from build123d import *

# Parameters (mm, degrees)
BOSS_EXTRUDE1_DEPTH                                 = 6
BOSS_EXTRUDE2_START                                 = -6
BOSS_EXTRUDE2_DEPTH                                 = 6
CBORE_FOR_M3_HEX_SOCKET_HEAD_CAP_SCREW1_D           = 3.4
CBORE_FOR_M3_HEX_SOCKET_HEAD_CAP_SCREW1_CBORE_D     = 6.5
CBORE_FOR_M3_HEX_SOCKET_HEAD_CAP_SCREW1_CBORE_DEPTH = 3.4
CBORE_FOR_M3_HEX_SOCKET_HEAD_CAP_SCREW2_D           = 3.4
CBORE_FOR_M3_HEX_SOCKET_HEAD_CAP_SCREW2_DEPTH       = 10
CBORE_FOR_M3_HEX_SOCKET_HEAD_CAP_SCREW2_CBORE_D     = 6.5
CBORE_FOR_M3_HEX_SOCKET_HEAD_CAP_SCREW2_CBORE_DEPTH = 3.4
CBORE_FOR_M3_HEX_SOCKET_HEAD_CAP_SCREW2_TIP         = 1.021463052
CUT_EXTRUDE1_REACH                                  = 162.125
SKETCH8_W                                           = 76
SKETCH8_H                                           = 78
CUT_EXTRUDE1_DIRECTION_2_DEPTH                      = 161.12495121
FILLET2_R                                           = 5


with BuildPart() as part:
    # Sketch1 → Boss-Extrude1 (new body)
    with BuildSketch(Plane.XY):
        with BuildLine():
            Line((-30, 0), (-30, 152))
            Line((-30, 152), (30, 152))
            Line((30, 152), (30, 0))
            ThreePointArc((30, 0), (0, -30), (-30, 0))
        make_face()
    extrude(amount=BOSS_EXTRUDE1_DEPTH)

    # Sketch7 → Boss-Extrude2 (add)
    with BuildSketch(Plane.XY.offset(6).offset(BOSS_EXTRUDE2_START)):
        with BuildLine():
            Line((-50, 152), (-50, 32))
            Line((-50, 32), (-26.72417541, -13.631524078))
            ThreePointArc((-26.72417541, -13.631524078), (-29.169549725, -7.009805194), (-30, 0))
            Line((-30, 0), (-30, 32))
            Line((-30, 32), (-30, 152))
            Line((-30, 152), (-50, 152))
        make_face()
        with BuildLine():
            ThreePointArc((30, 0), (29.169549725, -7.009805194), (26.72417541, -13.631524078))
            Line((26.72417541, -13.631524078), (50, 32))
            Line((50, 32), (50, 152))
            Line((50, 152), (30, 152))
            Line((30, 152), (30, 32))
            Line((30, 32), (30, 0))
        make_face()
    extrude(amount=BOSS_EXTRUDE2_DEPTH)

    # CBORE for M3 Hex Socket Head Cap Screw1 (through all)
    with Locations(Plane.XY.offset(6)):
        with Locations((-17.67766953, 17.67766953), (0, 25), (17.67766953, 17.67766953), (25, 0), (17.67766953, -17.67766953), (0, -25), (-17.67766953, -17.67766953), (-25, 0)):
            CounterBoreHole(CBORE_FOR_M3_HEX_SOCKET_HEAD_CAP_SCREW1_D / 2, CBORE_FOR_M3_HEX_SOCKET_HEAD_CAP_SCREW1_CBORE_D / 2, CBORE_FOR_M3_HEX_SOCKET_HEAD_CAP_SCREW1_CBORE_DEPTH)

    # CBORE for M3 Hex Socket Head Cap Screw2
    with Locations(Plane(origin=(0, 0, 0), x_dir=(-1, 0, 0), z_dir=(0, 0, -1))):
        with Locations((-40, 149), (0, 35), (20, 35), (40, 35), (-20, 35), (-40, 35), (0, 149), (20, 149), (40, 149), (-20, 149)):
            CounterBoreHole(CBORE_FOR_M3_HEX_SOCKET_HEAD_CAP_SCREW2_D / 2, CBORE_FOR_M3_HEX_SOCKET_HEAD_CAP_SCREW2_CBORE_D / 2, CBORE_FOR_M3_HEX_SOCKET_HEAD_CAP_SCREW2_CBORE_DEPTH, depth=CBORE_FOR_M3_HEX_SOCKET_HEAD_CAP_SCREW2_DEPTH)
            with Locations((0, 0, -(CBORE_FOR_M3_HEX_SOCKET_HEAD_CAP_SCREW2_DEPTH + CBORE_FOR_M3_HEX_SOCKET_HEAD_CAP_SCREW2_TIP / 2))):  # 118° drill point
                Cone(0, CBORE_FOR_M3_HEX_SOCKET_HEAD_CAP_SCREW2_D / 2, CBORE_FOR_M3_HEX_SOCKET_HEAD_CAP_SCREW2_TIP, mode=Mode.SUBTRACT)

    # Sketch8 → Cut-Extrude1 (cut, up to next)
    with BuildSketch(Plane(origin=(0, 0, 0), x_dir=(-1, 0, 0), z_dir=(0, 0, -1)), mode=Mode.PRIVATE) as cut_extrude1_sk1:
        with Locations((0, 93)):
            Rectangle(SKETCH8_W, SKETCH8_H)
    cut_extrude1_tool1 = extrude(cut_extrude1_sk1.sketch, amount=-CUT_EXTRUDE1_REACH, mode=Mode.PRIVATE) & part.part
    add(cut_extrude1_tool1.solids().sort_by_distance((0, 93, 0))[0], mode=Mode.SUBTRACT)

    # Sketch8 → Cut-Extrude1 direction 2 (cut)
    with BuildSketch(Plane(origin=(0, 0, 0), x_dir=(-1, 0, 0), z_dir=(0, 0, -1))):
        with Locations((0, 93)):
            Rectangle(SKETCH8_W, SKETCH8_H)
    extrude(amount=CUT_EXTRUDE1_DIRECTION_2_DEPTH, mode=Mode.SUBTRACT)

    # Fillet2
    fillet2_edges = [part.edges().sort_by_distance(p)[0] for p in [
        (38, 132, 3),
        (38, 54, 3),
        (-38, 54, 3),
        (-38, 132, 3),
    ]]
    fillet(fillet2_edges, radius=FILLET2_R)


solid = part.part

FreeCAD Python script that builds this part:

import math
import FreeCAD as App
import Part
import Sketcher
Q = App.Units.Quantity


def edges_at(feature, points):
    """Names of the edges that pass closest to the given points."""
    edges = feature.Shape.Edges
    near = lambda p: min(range(len(edges)), key=lambda i: edges[i].distToShape(Part.Vertex(*p))[0])
    return sorted({f"Edge{near(p) + 1}" for p in points})

doc = App.newDocument("Part")
params = doc.addObject("Spreadsheet::Sheet", "Params")
for row, (alias, value) in enumerate([
    ("sketch1_radius", "30 mm"),
    ("sketch1_height", "152 mm"),
    ("pad1_length", "6 mm"),
    ("sketch2_radius", "30 mm"),
    ("sketch2_width", "20 mm"),
    ("sketch2_height", "120 mm"),
    ("sketch2_height2", "152 mm"),
    ("pad2_length", "6 mm"),
    ("sketch3_diameter", "3.4 mm"),
    ("hole_diameter", "3.4 mm"),
    ("hole_cbore_diameter", "6.5 mm"),
    ("hole_cbore_depth", "3.4 mm"),
    ("sketch4_diameter", "3.4 mm"),
    ("hole2_diameter", "3.4 mm"),
    ("hole2_depth", "10 mm"),
    ("hole2_cbore_diameter", "6.5 mm"),
    ("hole2_cbore_depth", "3.4 mm"),
    ("sketch5_width", "76 mm"),
    ("sketch5_height", "78 mm"),
    ("sketch6_width", "76 mm"),
    ("sketch6_height", "78 mm"),
    ("pocket2_length", "161.124951 mm"),
    ("fillet_radius", "5 mm"),
], start=1):
    params.set(f"A{row}", alias)
    params.set(f"B{row}", "=" + value)
    params.setAlias(f"B{row}", alias)

body = doc.addObject("PartDesign::Body", "Body")

sketch1 = body.newObject("Sketcher::SketchObject", "Sketch")
sketch1.AttachmentSupport = (doc.getObject("XY_Plane"), [""])
sketch1.MapMode = "FlatFace"
sketch1.addGeometry(Part.LineSegment(App.Vector(-30, 152, 0), App.Vector(-30, 0, 0)), False)
sketch1.addGeometry(Part.ArcOfCircle(Part.Circle(App.Vector(0, 0, 0), App.Vector(0, 0, 1), 30), math.radians(180), math.radians(360)), False)
sketch1.addGeometry(Part.LineSegment(App.Vector(30, 0, 0), App.Vector(30, 152, 0)), False)
sketch1.addGeometry(Part.LineSegment(App.Vector(30, 152, 0), App.Vector(-30, 152, 0)), False)
sketch1.addConstraint(Sketcher.Constraint("Tangent", 0, 2, 1, 1))
sketch1.addConstraint(Sketcher.Constraint("Tangent", 1, 2, 2, 1))
sketch1.addConstraint(Sketcher.Constraint("Coincident", 2, 2, 3, 1))
sketch1.addConstraint(Sketcher.Constraint("Coincident", 3, 2, 0, 1))
sketch1.addConstraint(Sketcher.Constraint("Vertical", 0))
sketch1.addConstraint(Sketcher.Constraint("Vertical", 2))
sketch1.addConstraint(Sketcher.Constraint("Horizontal", 3))
sketch1.addConstraint(Sketcher.Constraint("Coincident", 1, 3, -1, 1))
sketch1.addConstraint(Sketcher.Constraint("Radius", 1, Q("30 mm")))
sketch1.addConstraint(Sketcher.Constraint("DistanceY", 0, 2, 0, 1, Q("152 mm")))
sketch1.setExpression("Constraints[8]", "Params.sketch1_radius")
sketch1.setExpression("Constraints[9]", "Params.sketch1_height")
pad1 = body.newObject("PartDesign::Pad", "Pad")
pad1.Profile = sketch1
pad1.setExpression("Length", "Params.pad1_length")

sketch2 = body.newObject("Sketcher::SketchObject", "Sketch001")
sketch2.AttachmentSupport = (doc.getObject("XY_Plane"), [""])
sketch2.MapMode = "FlatFace"
sketch2.addGeometry(Part.LineSegment(App.Vector(-50, 152, 0), App.Vector(-50, 32, 0)), False)
sketch2.addGeometry(Part.LineSegment(App.Vector(-50, 32, 0), App.Vector(-26.724175, -13.631524, 0)), False)
sketch2.addGeometry(Part.ArcOfCircle(Part.Circle(App.Vector(0, 0, 0), App.Vector(0, 0, 1), 30), math.radians(180), math.radians(207.025315)), False)
sketch2.addGeometry(Part.LineSegment(App.Vector(-30, 0, 0), App.Vector(-30, 152, 0)), False)
sketch2.addGeometry(Part.LineSegment(App.Vector(-30, 152, 0), App.Vector(-50, 152, 0)), False)
sketch2.addGeometry(Part.ArcOfCircle(Part.Circle(App.Vector(0, 0, 0), App.Vector(0, 0, 1), 30), math.radians(-27.025315), math.radians(0)), False)
sketch2.addGeometry(Part.LineSegment(App.Vector(26.724175, -13.631524, 0), App.Vector(50, 32, 0)), False)
sketch2.addGeometry(Part.LineSegment(App.Vector(50, 32, 0), App.Vector(50, 152, 0)), False)
sketch2.addGeometry(Part.LineSegment(App.Vector(50, 152, 0), App.Vector(30, 152, 0)), False)
sketch2.addGeometry(Part.LineSegment(App.Vector(30, 152, 0), App.Vector(30, 0, 0)), False)
sketch2.addConstraint(Sketcher.Constraint("Coincident", 0, 2, 1, 1))
sketch2.addConstraint(Sketcher.Constraint("Tangent", 1, 2, 2, 2))
sketch2.addConstraint(Sketcher.Constraint("Tangent", 2, 1, 3, 1))
sketch2.addConstraint(Sketcher.Constraint("Coincident", 3, 2, 4, 1))
sketch2.addConstraint(Sketcher.Constraint("Coincident", 4, 2, 0, 1))
sketch2.addConstraint(Sketcher.Constraint("Tangent", 5, 1, 6, 1))
sketch2.addConstraint(Sketcher.Constraint("Coincident", 6, 2, 7, 1))
sketch2.addConstraint(Sketcher.Constraint("Coincident", 7, 2, 8, 1))
sketch2.addConstraint(Sketcher.Constraint("Coincident", 8, 2, 9, 1))
sketch2.addConstraint(Sketcher.Constraint("Tangent", 9, 2, 5, 2))
sketch2.addConstraint(Sketcher.Constraint("Vertical", 0))
sketch2.addConstraint(Sketcher.Constraint("Vertical", 3))
sketch2.addConstraint(Sketcher.Constraint("Horizontal", 4))
sketch2.addConstraint(Sketcher.Constraint("Vertical", 7))
sketch2.addConstraint(Sketcher.Constraint("Horizontal", 8))
sketch2.addConstraint(Sketcher.Constraint("Vertical", 9))
sketch2.addConstraint(Sketcher.Constraint("Coincident", 2, 3, -1, 1))
sketch2.addConstraint(Sketcher.Constraint("Coincident", 5, 3, -1, 1))
sketch2.addConstraint(Sketcher.Constraint("Equal", 2, 5))
sketch2.addConstraint(Sketcher.Constraint("Symmetric", 0, 2, 6, 2, -2))
sketch2.addConstraint(Sketcher.Constraint("Horizontal", 4, 2, 7, 2))
sketch2.addConstraint(Sketcher.Constraint("Radius", 2, Q("30 mm")))
sketch2.addConstraint(Sketcher.Constraint("DistanceX", 4, 2, 4, 1, Q("20 mm")))
sketch2.addConstraint(Sketcher.Constraint("DistanceY", 0, 2, 0, 1, Q("120 mm")))
sketch2.addConstraint(Sketcher.Constraint("DistanceY", 3, 1, 3, 2, Q("152 mm")))
sketch2.setExpression("Constraints[21]", "Params.sketch2_radius")
sketch2.setExpression("Constraints[22]", "Params.sketch2_width")
sketch2.setExpression("Constraints[23]", "Params.sketch2_height")
sketch2.setExpression("Constraints[24]", "Params.sketch2_height2")
pad2 = body.newObject("PartDesign::Pad", "Pad001")
pad2.Profile = sketch2
pad2.setExpression("Length", "Params.pad2_length")

sketch3 = body.newObject("Sketcher::SketchObject", "Sketch002")
sketch3.AttachmentSupport = (doc.getObject("XY_Plane"), [""])
sketch3.MapMode = "FlatFace"
sketch3.AttachmentOffset = App.Placement(App.Vector(0, 0, 6), App.Rotation())
sketch3.addGeometry(Part.Circle(App.Vector(-17.67767, 17.67767, 0), App.Vector(0, 0, 1), 1.7), False)
sketch3.addGeometry(Part.Circle(App.Vector(0, 25, 0), App.Vector(0, 0, 1), 1.7), False)
sketch3.addGeometry(Part.Circle(App.Vector(17.67767, 17.67767, 0), App.Vector(0, 0, 1), 1.7), False)
sketch3.addGeometry(Part.Circle(App.Vector(25, 0, 0), App.Vector(0, 0, 1), 1.7), False)
sketch3.addGeometry(Part.Circle(App.Vector(17.67767, -17.67767, 0), App.Vector(0, 0, 1), 1.7), False)
sketch3.addGeometry(Part.Circle(App.Vector(0, -25, 0), App.Vector(0, 0, 1), 1.7), False)
sketch3.addGeometry(Part.Circle(App.Vector(-17.67767, -17.67767, 0), App.Vector(0, 0, 1), 1.7), False)
sketch3.addGeometry(Part.Circle(App.Vector(-25, 0, 0), App.Vector(0, 0, 1), 1.7), False)
sketch3.addConstraint(Sketcher.Constraint("Equal", 0, 1))
sketch3.addConstraint(Sketcher.Constraint("Equal", 1, 2))
sketch3.addConstraint(Sketcher.Constraint("Equal", 2, 3))
sketch3.addConstraint(Sketcher.Constraint("Equal", 3, 4))
sketch3.addConstraint(Sketcher.Constraint("Equal", 4, 5))
sketch3.addConstraint(Sketcher.Constraint("Equal", 5, 6))
sketch3.addConstraint(Sketcher.Constraint("Equal", 6, 7))
sketch3.addConstraint(Sketcher.Constraint("Symmetric", 0, 3, 4, 3, -1, 1))
sketch3.addConstraint(Sketcher.Constraint("Symmetric", 1, 3, 5, 3, -1, 1))
sketch3.addConstraint(Sketcher.Constraint("Symmetric", 2, 3, 6, 3, -1, 1))
sketch3.addConstraint(Sketcher.Constraint("Symmetric", 3, 3, 7, 3, -1, 1))
sketch3.addConstraint(Sketcher.Constraint("Symmetric", 0, 3, 2, 3, -2))
sketch3.addConstraint(Sketcher.Constraint("PointOnObject", 1, 3, -2))
sketch3.addConstraint(Sketcher.Constraint("PointOnObject", 3, 3, -1))
sketch3.addConstraint(Sketcher.Constraint("Diameter", 0, Q("3.4 mm")))
sketch3.addConstraint(Sketcher.Constraint("DistanceY", -1, 1, 1, 3, Q("25 mm")))
sketch3.addConstraint(Sketcher.Constraint("DistanceX", -1, 1, 3, 3, Q("25 mm")))
sketch3.addConstraint(Sketcher.Constraint("DistanceX", 0, 3, -1, 1, Q("17.67767 mm")))
sketch3.addConstraint(Sketcher.Constraint("DistanceY", -1, 1, 0, 3, Q("17.67767 mm")))
sketch3.setExpression("Constraints[14]", "Params.sketch3_diameter")
doc.recompute()
hole = body.newObject("PartDesign::Hole", "Hole")
hole.Profile = sketch3
hole.ThreadType = "None"
hole.setExpression("Diameter", "Params.hole_diameter")
hole.DepthType = "ThroughAll"
hole.HoleCutType = "Counterbore"
hole.setExpression("HoleCutDiameter", "Params.hole_cbore_diameter")
hole.setExpression("HoleCutDepth", "Params.hole_cbore_depth")

sketch4 = body.newObject("Sketcher::SketchObject", "Sketch003")
sketch4.AttachmentSupport = (doc.getObject("XY_Plane"), [""])
sketch4.MapMode = "FlatFace"
sketch4.addGeometry(Part.Circle(App.Vector(40, 149, 0), App.Vector(0, 0, 1), 1.7), False)
sketch4.addGeometry(Part.Circle(App.Vector(0, 35, 0), App.Vector(0, 0, 1), 1.7), False)
sketch4.addGeometry(Part.Circle(App.Vector(-20, 35, 0), App.Vector(0, 0, 1), 1.7), False)
sketch4.addGeometry(Part.Circle(App.Vector(-40, 35, 0), App.Vector(0, 0, 1), 1.7), False)
sketch4.addGeometry(Part.Circle(App.Vector(20, 35, 0), App.Vector(0, 0, 1), 1.7), False)
sketch4.addGeometry(Part.Circle(App.Vector(40, 35, 0), App.Vector(0, 0, 1), 1.7), False)
sketch4.addGeometry(Part.Circle(App.Vector(0, 149, 0), App.Vector(0, 0, 1), 1.7), False)
sketch4.addGeometry(Part.Circle(App.Vector(-20, 149, 0), App.Vector(0, 0, 1), 1.7), False)
sketch4.addGeometry(Part.Circle(App.Vector(-40, 149, 0), App.Vector(0, 0, 1), 1.7), False)
sketch4.addGeometry(Part.Circle(App.Vector(20, 149, 0), App.Vector(0, 0, 1), 1.7), False)
sketch4.addConstraint(Sketcher.Constraint("Equal", 0, 1))
sketch4.addConstraint(Sketcher.Constraint("Equal", 1, 2))
sketch4.addConstraint(Sketcher.Constraint("Equal", 2, 3))
sketch4.addConstraint(Sketcher.Constraint("Equal", 3, 4))
sketch4.addConstraint(Sketcher.Constraint("Equal", 4, 5))
sketch4.addConstraint(Sketcher.Constraint("Equal", 5, 6))
sketch4.addConstraint(Sketcher.Constraint("Equal", 6, 7))
sketch4.addConstraint(Sketcher.Constraint("Equal", 7, 8))
sketch4.addConstraint(Sketcher.Constraint("Equal", 8, 9))
sketch4.addConstraint(Sketcher.Constraint("Symmetric", 2, 3, 4, 3, -2))
sketch4.addConstraint(Sketcher.Constraint("Symmetric", 3, 3, 5, 3, -2))
sketch4.addConstraint(Sketcher.Constraint("Symmetric", 0, 3, 8, 3, -2))
sketch4.addConstraint(Sketcher.Constraint("Symmetric", 7, 3, 9, 3, -2))
sketch4.addConstraint(Sketcher.Constraint("PointOnObject", 1, 3, -2))
sketch4.addConstraint(Sketcher.Constraint("PointOnObject", 6, 3, -2))
sketch4.addConstraint(Sketcher.Constraint("Horizontal", 1, 3, 2, 3))
sketch4.addConstraint(Sketcher.Constraint("Horizontal", 2, 3, 3, 3))
sketch4.addConstraint(Sketcher.Constraint("Horizontal", 0, 3, 6, 3))
sketch4.addConstraint(Sketcher.Constraint("Horizontal", 6, 3, 7, 3))
sketch4.addConstraint(Sketcher.Constraint("Vertical", 0, 3, 5, 3))
sketch4.addConstraint(Sketcher.Constraint("Vertical", 2, 3, 7, 3))
sketch4.addConstraint(Sketcher.Constraint("Diameter", 0, Q("3.4 mm")))
sketch4.addConstraint(Sketcher.Constraint("DistanceX", -1, 1, 0, 3, Q("40 mm")))
sketch4.addConstraint(Sketcher.Constraint("DistanceY", -1, 1, 0, 3, Q("149 mm")))
sketch4.addConstraint(Sketcher.Constraint("DistanceY", -1, 1, 1, 3, Q("35 mm")))
sketch4.addConstraint(Sketcher.Constraint("DistanceX", 2, 3, -1, 1, Q("20 mm")))
sketch4.setExpression("Constraints[21]", "Params.sketch4_diameter")
doc.recompute()
hole2 = body.newObject("PartDesign::Hole", "Hole001")
hole2.Profile = sketch4
hole2.ThreadType = "None"
hole2.setExpression("Diameter", "Params.hole2_diameter")
hole2.DepthType = "Dimension"
hole2.setExpression("Depth", "Params.hole2_depth")
hole2.DrillPoint = "Angled"
hole2.DrillPointAngle = 118
hole2.HoleCutType = "Counterbore"
hole2.setExpression("HoleCutDiameter", "Params.hole2_cbore_diameter")
hole2.setExpression("HoleCutDepth", "Params.hole2_cbore_depth")
hole2.Reversed = True

sketch5 = body.newObject("Sketcher::SketchObject", "Sketch004")
sketch5.AttachmentSupport = (doc.getObject("XY_Plane"), [""])
sketch5.MapMode = "FlatFace"
sketch5.addGeometry(Part.LineSegment(App.Vector(38, 132, 0), App.Vector(38, 54, 0)), False)
sketch5.addGeometry(Part.LineSegment(App.Vector(38, 54, 0), App.Vector(-38, 54, 0)), False)
sketch5.addGeometry(Part.LineSegment(App.Vector(-38, 54, 0), App.Vector(-38, 132, 0)), False)
sketch5.addGeometry(Part.LineSegment(App.Vector(-38, 132, 0), App.Vector(38, 132, 0)), False)
sketch5.addConstraint(Sketcher.Constraint("Coincident", 0, 2, 1, 1))
sketch5.addConstraint(Sketcher.Constraint("Coincident", 1, 2, 2, 1))
sketch5.addConstraint(Sketcher.Constraint("Coincident", 2, 2, 3, 1))
sketch5.addConstraint(Sketcher.Constraint("Coincident", 3, 2, 0, 1))
sketch5.addConstraint(Sketcher.Constraint("Vertical", 0))
sketch5.addConstraint(Sketcher.Constraint("Horizontal", 1))
sketch5.addConstraint(Sketcher.Constraint("Vertical", 2))
sketch5.addConstraint(Sketcher.Constraint("Horizontal", 3))
sketch5.addConstraint(Sketcher.Constraint("DistanceX", 1, 2, 1, 1, Q("76 mm")))
sketch5.addConstraint(Sketcher.Constraint("DistanceY", 0, 2, 0, 1, Q("78 mm")))
sketch5.addConstraint(Sketcher.Constraint("DistanceX", -1, 1, 0, 2, Q("38 mm")))
sketch5.addConstraint(Sketcher.Constraint("DistanceY", -1, 1, 0, 2, Q("54 mm")))
sketch5.setExpression("Constraints[8]", "Params.sketch5_width")
sketch5.setExpression("Constraints[9]", "Params.sketch5_height")
pocket1 = body.newObject("PartDesign::Pocket", "Pocket")
pocket1.Profile = sketch5
pocket1.Type = "UpToFirst"
pocket1.Reversed = True

sketch6 = body.newObject("Sketcher::SketchObject", "Sketch005")
sketch6.AttachmentSupport = (doc.getObject("XY_Plane"), [""])
sketch6.MapMode = "FlatFace"
sketch6.addGeometry(Part.LineSegment(App.Vector(38, 132, 0), App.Vector(38, 54, 0)), False)
sketch6.addGeometry(Part.LineSegment(App.Vector(38, 54, 0), App.Vector(-38, 54, 0)), False)
sketch6.addGeometry(Part.LineSegment(App.Vector(-38, 54, 0), App.Vector(-38, 132, 0)), False)
sketch6.addGeometry(Part.LineSegment(App.Vector(-38, 132, 0), App.Vector(38, 132, 0)), False)
sketch6.addConstraint(Sketcher.Constraint("Coincident", 0, 2, 1, 1))
sketch6.addConstraint(Sketcher.Constraint("Coincident", 1, 2, 2, 1))
sketch6.addConstraint(Sketcher.Constraint("Coincident", 2, 2, 3, 1))
sketch6.addConstraint(Sketcher.Constraint("Coincident", 3, 2, 0, 1))
sketch6.addConstraint(Sketcher.Constraint("Vertical", 0))
sketch6.addConstraint(Sketcher.Constraint("Horizontal", 1))
sketch6.addConstraint(Sketcher.Constraint("Vertical", 2))
sketch6.addConstraint(Sketcher.Constraint("Horizontal", 3))
sketch6.addConstraint(Sketcher.Constraint("DistanceX", 1, 2, 1, 1, Q("76 mm")))
sketch6.addConstraint(Sketcher.Constraint("DistanceY", 0, 2, 0, 1, Q("78 mm")))
sketch6.addConstraint(Sketcher.Constraint("DistanceX", -1, 1, 0, 2, Q("38 mm")))
sketch6.addConstraint(Sketcher.Constraint("DistanceY", -1, 1, 0, 2, Q("54 mm")))
sketch6.setExpression("Constraints[8]", "Params.sketch6_width")
sketch6.setExpression("Constraints[9]", "Params.sketch6_height")
pocket2 = body.newObject("PartDesign::Pocket", "Pocket001")
pocket2.Profile = sketch6
pocket2.setExpression("Length", "Params.pocket2_length")
doc.recompute()

fillet = body.newObject("PartDesign::Fillet", "Fillet")
fillet.Base = (pocket2, edges_at(pocket2, [
    (38, 132, 3),
    (38, 54, 3),
    (-38, 54, 3),
    (-38, 132, 3),
]))
fillet.setExpression("Radius", "Params.fillet_radius")

doc.recompute()
